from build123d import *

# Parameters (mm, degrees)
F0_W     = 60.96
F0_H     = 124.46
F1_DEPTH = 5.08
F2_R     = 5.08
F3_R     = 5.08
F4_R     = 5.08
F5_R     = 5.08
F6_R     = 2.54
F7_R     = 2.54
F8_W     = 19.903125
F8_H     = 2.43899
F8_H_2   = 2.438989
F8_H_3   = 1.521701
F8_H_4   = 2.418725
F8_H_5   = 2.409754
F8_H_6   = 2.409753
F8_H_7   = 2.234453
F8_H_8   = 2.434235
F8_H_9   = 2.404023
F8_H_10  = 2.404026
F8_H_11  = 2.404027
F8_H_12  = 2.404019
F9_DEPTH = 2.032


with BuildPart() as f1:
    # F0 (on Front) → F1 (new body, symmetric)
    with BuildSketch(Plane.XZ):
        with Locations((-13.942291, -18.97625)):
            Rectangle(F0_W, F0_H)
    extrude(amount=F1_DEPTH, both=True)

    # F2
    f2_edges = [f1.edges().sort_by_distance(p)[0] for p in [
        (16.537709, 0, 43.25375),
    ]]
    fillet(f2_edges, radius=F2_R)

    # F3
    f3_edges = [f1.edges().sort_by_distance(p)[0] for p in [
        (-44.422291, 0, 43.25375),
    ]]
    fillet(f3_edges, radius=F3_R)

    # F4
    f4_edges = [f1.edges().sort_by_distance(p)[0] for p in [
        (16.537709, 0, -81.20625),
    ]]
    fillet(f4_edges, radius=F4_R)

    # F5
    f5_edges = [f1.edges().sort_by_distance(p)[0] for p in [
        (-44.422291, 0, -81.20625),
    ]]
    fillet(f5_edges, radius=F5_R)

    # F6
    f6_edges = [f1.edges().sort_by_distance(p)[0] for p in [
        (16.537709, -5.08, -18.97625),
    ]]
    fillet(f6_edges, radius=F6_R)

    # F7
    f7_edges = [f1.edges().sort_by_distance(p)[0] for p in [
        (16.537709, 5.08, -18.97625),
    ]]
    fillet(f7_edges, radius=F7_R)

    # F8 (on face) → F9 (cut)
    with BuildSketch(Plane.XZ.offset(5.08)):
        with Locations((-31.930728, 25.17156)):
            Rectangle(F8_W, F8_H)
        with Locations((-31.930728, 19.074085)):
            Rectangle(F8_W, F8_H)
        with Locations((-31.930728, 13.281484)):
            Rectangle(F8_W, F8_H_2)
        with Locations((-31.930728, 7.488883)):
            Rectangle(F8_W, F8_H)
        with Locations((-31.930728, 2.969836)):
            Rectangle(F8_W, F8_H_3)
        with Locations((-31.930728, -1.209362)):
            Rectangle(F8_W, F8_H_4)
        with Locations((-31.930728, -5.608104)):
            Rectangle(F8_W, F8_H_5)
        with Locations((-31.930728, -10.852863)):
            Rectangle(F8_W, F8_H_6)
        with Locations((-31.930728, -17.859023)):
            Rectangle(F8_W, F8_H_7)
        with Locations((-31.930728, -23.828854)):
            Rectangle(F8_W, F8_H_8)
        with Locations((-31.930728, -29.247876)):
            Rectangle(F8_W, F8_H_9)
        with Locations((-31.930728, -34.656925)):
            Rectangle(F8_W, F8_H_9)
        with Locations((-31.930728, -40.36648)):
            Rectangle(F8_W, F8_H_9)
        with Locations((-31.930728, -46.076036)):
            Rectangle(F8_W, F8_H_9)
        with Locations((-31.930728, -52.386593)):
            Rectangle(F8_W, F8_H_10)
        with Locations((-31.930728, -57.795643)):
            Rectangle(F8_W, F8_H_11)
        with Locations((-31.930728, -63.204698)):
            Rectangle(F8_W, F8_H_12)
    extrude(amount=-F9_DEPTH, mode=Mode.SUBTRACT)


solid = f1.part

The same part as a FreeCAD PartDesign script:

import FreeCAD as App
import Part
import Sketcher
from FreeCAD import Vector
Q = App.Units.Quantity


def edges_at(feature, points):
    """Names of the edges that pass closest to the given points."""
    edges = feature.Shape.Edges
    near = lambda p: min(range(len(edges)), key=lambda i: edges[i].distToShape(Part.Vertex(*p))[0])
    return sorted({f"Edge{near(p) + 1}" for p in points})


def add_polygon(sketch, points):
    """Adds a closed chain of lines whose ends are joined by coincident constraints."""
    first, n = sketch.GeometryCount, len(points)
    for a, b in zip(points, points[1:] + points[:1]):
        sketch.addGeometry(Part.LineSegment(App.Vector(*a, 0), App.Vector(*b, 0)), False)
    for i in range(n):
        sketch.addConstraint(Sketcher.Constraint("Coincident", first + i, 2, first + (i + 1) % n, 1))

doc = App.newDocument("Part")
body = doc.addObject("PartDesign::Body", "Body")

# Sketch on XZ plane
sketch1 = doc.addObject("Sketcher::SketchObject", "Sketch")
body.addObject(sketch1)
sketch1.AttachmentSupport = (doc.XZ_Plane, [""])
sketch1.MapMode = "FlatFace"
add_polygon(sketch1, [(-44.422291, 43.25375), (-44.422291, -81.20625), (16.537709, -81.20625), (16.537709, 43.25375)])  # lines 0-3
sketch1.addConstraint(Sketcher.Constraint("Vertical", 0))
sketch1.addConstraint(Sketcher.Constraint("Horizontal", 1))
sketch1.addConstraint(Sketcher.Constraint("Vertical", 2))
sketch1.addConstraint(Sketcher.Constraint("Horizontal", 3))
sketch1.addConstraint(Sketcher.Constraint("DistanceX", 1, 1, 1, 2, Q("2.4 in")))
sketch1.addConstraint(Sketcher.Constraint("DistanceY", 0, 2, 0, 1, Q("4.9 in")))
sketch1.addConstraint(Sketcher.Constraint("DistanceX", 0, 2, -1, 1, 44.422291))
sketch1.addConstraint(Sketcher.Constraint("DistanceY", 0, 2, -1, 1, 81.20625))
pad1 = doc.addObject("PartDesign::Pad", "Pad")
body.addObject(pad1)
pad1.Profile = sketch1
pad1.Length = Q("0.4 in")
pad1.Midplane = True
doc.recompute()

fillet = doc.addObject("PartDesign::Fillet", "Fillet")
body.addObject(fillet)
fillet.Base = (pad1, edges_at(pad1, [(16.538, 0, 43.254)]))
fillet.Radius = Q("0.2 in")
doc.recompute()

fillet2 = doc.addObject("PartDesign::Fillet", "Fillet001")
body.addObject(fillet2)
fillet2.Base = (fillet, edges_at(fillet, [(-44.422, 0, 43.254)]))
fillet2.Radius = Q("0.2 in")
doc.recompute()

fillet3 = doc.addObject("PartDesign::Fillet", "Fillet002")
body.addObject(fillet3)
fillet3.Base = (fillet2, edges_at(fillet2, [(16.538, 0, -81.206)]))
fillet3.Radius = Q("0.2 in")
doc.recompute()

fillet4 = doc.addObject("PartDesign::Fillet", "Fillet003")
body.addObject(fillet4)
fillet4.Base = (fillet3, edges_at(fillet3, [(-44.422, 0, -81.206)]))
fillet4.Radius = Q("0.2 in")
doc.recompute()

fillet5 = doc.addObject("PartDesign::Fillet", "Fillet004")
body.addObject(fillet5)
fillet5.Base = (fillet4, edges_at(fillet4, [(16.538, -5.08, -18.976)]))
fillet5.Radius = Q("0.1 in")
doc.recompute()

fillet6 = doc.addObject("PartDesign::Fillet", "Fillet005")
body.addObject(fillet6)
fillet6.Base = (fillet5, edges_at(fillet5, [(16.538, 5.08, -18.976)]))
fillet6.Radius = Q("0.1 in")

# Sketch on XZ plane
sketch2 = doc.addObject("Sketcher::SketchObject", "Sketch001")
body.addObject(sketch2)
sketch2.AttachmentSupport = (doc.XZ_Plane, [""])
sketch2.MapMode = "FlatFace"
sketch2.AttachmentOffset = App.Placement(Vector(0, 0, 0.2 * 25.4), App.Rotation())
add_polygon(sketch2, [(-41.882291, 26.391055), (-41.882291, 23.952065), (-21.979166, 23.952065), (-21.979166, 26.391055)])  # lines 0-3
add_polygon(sketch2, [(-41.882291, 20.29358), (-41.882291, 17.85459), (-21.979166, 17.85459), (-21.979166, 20.29358)])  # lines 4-7
add_polygon(sketch2, [(-41.882291, 14.500979), (-41.882291, 12.061989), (-21.979166, 12.061989), (-21.979166, 14.500979)])  # lines 8-11
add_polygon(sketch2, [(-41.882291, 8.708378), (-41.882291, 6.269388), (-21.979166, 6.269388), (-21.979166, 8.708378)])  # lines 12-15
add_polygon(sketch2, [(-41.882291, 3.730687), (-41.882291, 2.208985), (-21.979166, 2.208985), (-21.979166, 3.730687)])  # lines 16-19
add_polygon(sketch2, [(-41.882291, 0), (-41.882291, -2.418725), (-21.979166, -2.418725), (-21.979166, 0)])  # lines 20-23
add_polygon(sketch2, [(-41.882291, -4.403227), (-41.882291, -6.812981), (-21.979166, -6.812981), (-21.979166, -4.403227)])  # lines 24-27
add_polygon(sketch2, [(-41.882291, -9.647987), (-41.882291, -12.05774), (-21.979166, -12.05774), (-21.979166, -9.647987)])  # lines 28-31
add_polygon(sketch2, [(-41.882291, -16.741796), (-41.882291, -18.97625), (-21.979166, -18.97625), (-21.979166, -16.741796)])  # lines 32-35
add_polygon(sketch2, [(-41.882291, -22.611736), (-41.882291, -25.045972), (-21.979166, -25.045972), (-21.979166, -22.611736)])  # lines 36-39
add_polygon(sketch2, [(-41.882291, -28.045865), (-41.882291, -30.449887), (-21.979166, -30.449887), (-21.979166, -28.045865)])  # lines 40-43
add_polygon(sketch2, [(-41.882291, -33.454914), (-41.882291, -35.858936), (-21.979166, -35.858936), (-21.979166, -33.454914)])  # lines 44-47
add_polygon(sketch2, [(-41.882291, -39.164468), (-41.882291, -41.568492), (-21.979166, -41.568492), (-21.979166, -39.164468)])  # lines 48-51
add_polygon(sketch2, [(-41.882291, -44.874024), (-41.882291, -47.278047), (-21.979166, -47.278047), (-21.979166, -44.874024)])  # lines 52-55
add_polygon(sketch2, [(-41.882291, -51.18458), (-41.882291, -53.588606), (-21.979166, -53.588606), (-21.979166, -51.18458)])  # lines 56-59
add_polygon(sketch2, [(-41.882291, -56.593629), (-41.882291, -58.997656), (-21.979166, -58.997656), (-21.979166, -56.593629)])  # lines 60-63
add_polygon(sketch2, [(-41.882291, -62.002688), (-41.882291, -64.406707), (-21.979166, -64.406707), (-21.979166, -62.002688)])  # lines 64-67
sketch2.addConstraint(Sketcher.Constraint("Vertical", 0))
sketch2.addConstraint(Sketcher.Constraint("Horizontal", 1))
sketch2.addConstraint(Sketcher.Constraint("Vertical", 2))
sketch2.addConstraint(Sketcher.Constraint("Horizontal", 3))
sketch2.addConstraint(Sketcher.Constraint("Vertical", 4))
sketch2.addConstraint(Sketcher.Constraint("Horizontal", 5))
sketch2.addConstraint(Sketcher.Constraint("Vertical", 6))
sketch2.addConstraint(Sketcher.Constraint("Horizontal", 7))
sketch2.addConstraint(Sketcher.Constraint("Vertical", 8))
sketch2.addConstraint(Sketcher.Constraint("Horizontal", 9))
sketch2.addConstraint(Sketcher.Constraint("Vertical", 10))
sketch2.addConstraint(Sketcher.Constraint("Horizontal", 11))
sketch2.addConstraint(Sketcher.Constraint("Vertical", 12))
sketch2.addConstraint(Sketcher.Constraint("Horizontal", 13))
sketch2.addConstraint(Sketcher.Constraint("Vertical", 14))
sketch2.addConstraint(Sketcher.Constraint("Horizontal", 15))
sketch2.addConstraint(Sketcher.Constraint("Vertical", 16))
sketch2.addConstraint(Sketcher.Constraint("Horizontal", 17))
sketch2.addConstraint(Sketcher.Constraint("Vertical", 18))
sketch2.addConstraint(Sketcher.Constraint("Horizontal", 19))
sketch2.addConstraint(Sketcher.Constraint("Vertical", 20))
sketch2.addConstraint(Sketcher.Constraint("Horizontal", 21))
sketch2.addConstraint(Sketcher.Constraint("Vertical", 22))
sketch2.addConstraint(Sketcher.Constraint("Horizontal", 23))
sketch2.addConstraint(Sketcher.Constraint("Vertical", 24))
sketch2.addConstraint(Sketcher.Constraint("Horizontal", 25))
sketch2.addConstraint(Sketcher.Constraint("Vertical", 26))
sketch2.addConstraint(Sketcher.Constraint("Horizontal", 27))
sketch2.addConstraint(Sketcher.Constraint("Vertical", 28))
sketch2.addConstraint(Sketcher.Constraint("Horizontal", 29))
sketch2.addConstraint(Sketcher.Constraint("Vertical", 30))
sketch2.addConstraint(Sketcher.Constraint("Horizontal", 31))
sketch2.addConstraint(Sketcher.Constraint("Vertical", 32))
sketch2.addConstraint(Sketcher.Constraint("Horizontal", 33))
sketch2.addConstraint(Sketcher.Constraint("Vertical", 34))
sketch2.addConstraint(Sketcher.Constraint("Horizontal", 35))
sketch2.addConstraint(Sketcher.Constraint("Vertical", 36))
sketch2.addConstraint(Sketcher.Constraint("Horizontal", 37))
sketch2.addConstraint(Sketcher.Constraint("Vertical", 38))
sketch2.addConstraint(Sketcher.Constraint("Horizontal", 39))
sketch2.addConstraint(Sketcher.Constraint("Vertical", 40))
sketch2.addConstraint(Sketcher.Constraint("Horizontal", 41))
sketch2.addConstraint(Sketcher.Constraint("Vertical", 42))
sketch2.addConstraint(Sketcher.Constraint("Horizontal", 43))
sketch2.addConstraint(Sketcher.Constraint("Vertical", 44))
sketch2.addConstraint(Sketcher.Constraint("Horizontal", 45))
sketch2.addConstraint(Sketcher.Constraint("Vertical", 46))
sketch2.addConstraint(Sketcher.Constraint("Horizontal", 47))
sketch2.addConstraint(Sketcher.Constraint("Vertical", 48))
sketch2.addConstraint(Sketcher.Constraint("Horizontal", 49))
sketch2.addConstraint(Sketcher.Constraint("Vertical", 50))
sketch2.addConstraint(Sketcher.Constraint("Horizontal", 51))
sketch2.addConstraint(Sketcher.Constraint("Vertical", 52))
sketch2.addConstraint(Sketcher.Constraint("Horizontal", 53))
sketch2.addConstraint(Sketcher.Constraint("Vertical", 54))
sketch2.addConstraint(Sketcher.Constraint("Horizontal", 55))
sketch2.addConstraint(Sketcher.Constraint("Vertical", 56))
sketch2.addConstraint(Sketcher.Constraint("Horizontal", 57))
sketch2.addConstraint(Sketcher.Constraint("Vertical", 58))
sketch2.addConstraint(Sketcher.Constraint("Horizontal", 59))
sketch2.addConstraint(Sketcher.Constraint("Vertical", 60))
sketch2.addConstraint(Sketcher.Constraint("Horizontal", 61))
sketch2.addConstraint(Sketcher.Constraint("Vertical", 62))
sketch2.addConstraint(Sketcher.Constraint("Horizontal", 63))
sketch2.addConstraint(Sketcher.Constraint("Vertical", 64))
sketch2.addConstraint(Sketcher.Constraint("Horizontal", 65))
sketch2.addConstraint(Sketcher.Constraint("Vertical", 66))
sketch2.addConstraint(Sketcher.Constraint("Horizontal", 67))
sketch2.addConstraint(Sketcher.Constraint("PointOnObject", 22, 2, -1))
sketch2.addConstraint(Sketcher.Constraint("Vertical", 3, 2, 4, 2))
sketch2.addConstraint(Sketcher.Constraint("Vertical", 2, 2, 5, 2))
sketch2.addConstraint(Sketcher.Constraint("Vertical", 7, 2, 8, 2))
sketch2.addConstraint(Sketcher.Constraint("Vertical", 6, 2, 9, 2))
sketch2.addConstraint(Sketcher.Constraint("Vertical", 11, 2, 12, 2))
sketch2.addConstraint(Sketcher.Constraint("Vertical", 10, 2, 13, 2))
sketch2.addConstraint(Sketcher.Constraint("Vertical", 15, 2, 16, 2))
sketch2.addConstraint(Sketcher.Constraint("Vertical", 14, 2, 17, 2))
sketch2.addConstraint(Sketcher.Constraint("Vertical", 19, 2, 20, 2))
sketch2.addConstraint(Sketcher.Constraint("Vertical", 18, 2, 21, 2))
sketch2.addConstraint(Sketcher.Constraint("Vertical", 23, 2, 24, 2))
sketch2.addConstraint(Sketcher.Constraint("Vertical", 22, 2, 25, 2))
sketch2.addConstraint(Sketcher.Constraint("Vertical", 27, 2, 28, 2))
sketch2.addConstraint(Sketcher.Constraint("Vertical", 26, 2, 29, 2))
sketch2.addConstraint(Sketcher.Constraint("Vertical", 31, 2, 32, 2))
sketch2.addConstraint(Sketcher.Constraint("Vertical", 30, 2, 33, 2))
sketch2.addConstraint(Sketcher.Constraint("Vertical", 35, 2, 36, 2))
sketch2.addConstraint(Sketcher.Constraint("Vertical", 34, 2, 37, 2))
sketch2.addConstraint(Sketcher.Constraint("Vertical", 39, 2, 40, 2))
sketch2.addConstraint(Sketcher.Constraint("Vertical", 38, 2, 41, 2))
sketch2.addConstraint(Sketcher.Constraint("Vertical", 43, 2, 44, 2))
sketch2.addConstraint(Sketcher.Constraint("Vertical", 42, 2, 45, 2))
sketch2.addConstraint(Sketcher.Constraint("Vertical", 47, 2, 48, 2))
sketch2.addConstraint(Sketcher.Constraint("Vertical", 46, 2, 49, 2))
sketch2.addConstraint(Sketcher.Constraint("Vertical", 51, 2, 52, 2))
sketch2.addConstraint(Sketcher.Constraint("Vertical", 50, 2, 53, 2))
sketch2.addConstraint(Sketcher.Constraint("Vertical", 55, 2, 56, 2))
sketch2.addConstraint(Sketcher.Constraint("Vertical", 54, 2, 57, 2))
sketch2.addConstraint(Sketcher.Constraint("Vertical", 59, 2, 60, 2))
sketch2.addConstraint(Sketcher.Constraint("Vertical", 58, 2, 61, 2))
sketch2.addConstraint(Sketcher.Constraint("Vertical", 63, 2, 64, 2))
sketch2.addConstraint(Sketcher.Constraint("Vertical", 62, 2, 65, 2))
sketch2.addConstraint(Sketcher.Constraint("Equal", 2, 4))
sketch2.addConstraint(Sketcher.Constraint("Equal", 6, 8))
sketch2.addConstraint(Sketcher.Constraint("Equal", 10, 12))
sketch2.addConstraint(Sketcher.Constraint("Equal", 26, 28))
sketch2.addConstraint(Sketcher.Constraint("Equal", 42, 44))
sketch2.addConstraint(Sketcher.Constraint("Equal", 46, 48))
sketch2.addConstraint(Sketcher.Constraint("Equal", 50, 52))
sketch2.addConstraint(Sketcher.Constraint("Equal", 58, 60))
sketch2.addConstraint(Sketcher.Constraint("DistanceY", 16, 2, 16, 1, 1.521701))
sketch2.addConstraint(Sketcher.Constraint("DistanceY", 0, 2, 0, 1, 2.43899))
sketch2.addConstraint(Sketcher.Constraint("DistanceY", 64, 2, 64, 1, 2.404019))
sketch2.addConstraint(Sketcher.Constraint("DistanceX", 1, 1, 1, 2, 19.903125))
sketch2.addConstraint(Sketcher.Constraint("DistanceY", 20, 2, 20, 1, 2.418725))
sketch2.addConstraint(Sketcher.Constraint("DistanceY", 24, 2, 24, 1, 2.409754))
sketch2.addConstraint(Sketcher.Constraint("DistanceY", 32, 2, 32, 1, 2.234453))
sketch2.addConstraint(Sketcher.Constraint("DistanceY", 36, 2, 36, 1, 2.434235))
sketch2.addConstraint(Sketcher.Constraint("DistanceY", 40, 2, 40, 1, 2.404023))
sketch2.addConstraint(Sketcher.Constraint("DistanceY", 56, 2, 56, 1, 2.404026))
sketch2.addConstraint(Sketcher.Constraint("DistanceX", 0, 2, -1, 1, 41.882291))
sketch2.addConstraint(Sketcher.Constraint("DistanceY", -1, 1, 4, 2, 17.85459))
sketch2.addConstraint(Sketcher.Constraint("DistanceY", -1, 1, 8, 2, 12.061989))
sketch2.addConstraint(Sketcher.Constraint("DistanceY", -1, 1, 12, 2, 6.269388))
sketch2.addConstraint(Sketcher.Constraint("DistanceY", 24, 2, -1, 1, 6.812981))
sketch2.addConstraint(Sketcher.Constraint("DistanceY", 28, 2, -1, 1, 12.05774))
sketch2.addConstraint(Sketcher.Constraint("DistanceY", 32, 2, -1, 1, 18.97625))
sketch2.addConstraint(Sketcher.Constraint("DistanceY", 36, 2, -1, 1, 25.045972))
sketch2.addConstraint(Sketcher.Constraint("DistanceY", 48, 2, -1, 1, 41.568492))
sketch2.addConstraint(Sketcher.Constraint("DistanceY", 58, 2, -1, 1, 51.18458))
sketch2.addConstraint(Sketcher.Constraint("DistanceY", 62, 2, -1, 1, 56.593629))
sketch2.addConstraint(Sketcher.Constraint("DistanceY", 66, 2, -1, 1, 62.002688))
sketch2.addConstraint(Sketcher.Constraint("DistanceY", -1, 1, 0, 2, 23.952065))
sketch2.addConstraint(Sketcher.Constraint("DistanceY", -1, 1, 16, 2, 2.208985))
sketch2.addConstraint(Sketcher.Constraint("DistanceY", 40, 2, -1, 1, 30.449887))
sketch2.addConstraint(Sketcher.Constraint("DistanceY", 44, 2, -1, 1, 35.858936))
sketch2.addConstraint(Sketcher.Constraint("DistanceY", 52, 2, -1, 1, 47.278047))
pocket1 = doc.addObject("PartDesign::Pocket", "Pocket")
body.addObject(pocket1)
pocket1.Profile = sketch2
pocket1.Length = Q("0.08 in")

doc.recompute()
